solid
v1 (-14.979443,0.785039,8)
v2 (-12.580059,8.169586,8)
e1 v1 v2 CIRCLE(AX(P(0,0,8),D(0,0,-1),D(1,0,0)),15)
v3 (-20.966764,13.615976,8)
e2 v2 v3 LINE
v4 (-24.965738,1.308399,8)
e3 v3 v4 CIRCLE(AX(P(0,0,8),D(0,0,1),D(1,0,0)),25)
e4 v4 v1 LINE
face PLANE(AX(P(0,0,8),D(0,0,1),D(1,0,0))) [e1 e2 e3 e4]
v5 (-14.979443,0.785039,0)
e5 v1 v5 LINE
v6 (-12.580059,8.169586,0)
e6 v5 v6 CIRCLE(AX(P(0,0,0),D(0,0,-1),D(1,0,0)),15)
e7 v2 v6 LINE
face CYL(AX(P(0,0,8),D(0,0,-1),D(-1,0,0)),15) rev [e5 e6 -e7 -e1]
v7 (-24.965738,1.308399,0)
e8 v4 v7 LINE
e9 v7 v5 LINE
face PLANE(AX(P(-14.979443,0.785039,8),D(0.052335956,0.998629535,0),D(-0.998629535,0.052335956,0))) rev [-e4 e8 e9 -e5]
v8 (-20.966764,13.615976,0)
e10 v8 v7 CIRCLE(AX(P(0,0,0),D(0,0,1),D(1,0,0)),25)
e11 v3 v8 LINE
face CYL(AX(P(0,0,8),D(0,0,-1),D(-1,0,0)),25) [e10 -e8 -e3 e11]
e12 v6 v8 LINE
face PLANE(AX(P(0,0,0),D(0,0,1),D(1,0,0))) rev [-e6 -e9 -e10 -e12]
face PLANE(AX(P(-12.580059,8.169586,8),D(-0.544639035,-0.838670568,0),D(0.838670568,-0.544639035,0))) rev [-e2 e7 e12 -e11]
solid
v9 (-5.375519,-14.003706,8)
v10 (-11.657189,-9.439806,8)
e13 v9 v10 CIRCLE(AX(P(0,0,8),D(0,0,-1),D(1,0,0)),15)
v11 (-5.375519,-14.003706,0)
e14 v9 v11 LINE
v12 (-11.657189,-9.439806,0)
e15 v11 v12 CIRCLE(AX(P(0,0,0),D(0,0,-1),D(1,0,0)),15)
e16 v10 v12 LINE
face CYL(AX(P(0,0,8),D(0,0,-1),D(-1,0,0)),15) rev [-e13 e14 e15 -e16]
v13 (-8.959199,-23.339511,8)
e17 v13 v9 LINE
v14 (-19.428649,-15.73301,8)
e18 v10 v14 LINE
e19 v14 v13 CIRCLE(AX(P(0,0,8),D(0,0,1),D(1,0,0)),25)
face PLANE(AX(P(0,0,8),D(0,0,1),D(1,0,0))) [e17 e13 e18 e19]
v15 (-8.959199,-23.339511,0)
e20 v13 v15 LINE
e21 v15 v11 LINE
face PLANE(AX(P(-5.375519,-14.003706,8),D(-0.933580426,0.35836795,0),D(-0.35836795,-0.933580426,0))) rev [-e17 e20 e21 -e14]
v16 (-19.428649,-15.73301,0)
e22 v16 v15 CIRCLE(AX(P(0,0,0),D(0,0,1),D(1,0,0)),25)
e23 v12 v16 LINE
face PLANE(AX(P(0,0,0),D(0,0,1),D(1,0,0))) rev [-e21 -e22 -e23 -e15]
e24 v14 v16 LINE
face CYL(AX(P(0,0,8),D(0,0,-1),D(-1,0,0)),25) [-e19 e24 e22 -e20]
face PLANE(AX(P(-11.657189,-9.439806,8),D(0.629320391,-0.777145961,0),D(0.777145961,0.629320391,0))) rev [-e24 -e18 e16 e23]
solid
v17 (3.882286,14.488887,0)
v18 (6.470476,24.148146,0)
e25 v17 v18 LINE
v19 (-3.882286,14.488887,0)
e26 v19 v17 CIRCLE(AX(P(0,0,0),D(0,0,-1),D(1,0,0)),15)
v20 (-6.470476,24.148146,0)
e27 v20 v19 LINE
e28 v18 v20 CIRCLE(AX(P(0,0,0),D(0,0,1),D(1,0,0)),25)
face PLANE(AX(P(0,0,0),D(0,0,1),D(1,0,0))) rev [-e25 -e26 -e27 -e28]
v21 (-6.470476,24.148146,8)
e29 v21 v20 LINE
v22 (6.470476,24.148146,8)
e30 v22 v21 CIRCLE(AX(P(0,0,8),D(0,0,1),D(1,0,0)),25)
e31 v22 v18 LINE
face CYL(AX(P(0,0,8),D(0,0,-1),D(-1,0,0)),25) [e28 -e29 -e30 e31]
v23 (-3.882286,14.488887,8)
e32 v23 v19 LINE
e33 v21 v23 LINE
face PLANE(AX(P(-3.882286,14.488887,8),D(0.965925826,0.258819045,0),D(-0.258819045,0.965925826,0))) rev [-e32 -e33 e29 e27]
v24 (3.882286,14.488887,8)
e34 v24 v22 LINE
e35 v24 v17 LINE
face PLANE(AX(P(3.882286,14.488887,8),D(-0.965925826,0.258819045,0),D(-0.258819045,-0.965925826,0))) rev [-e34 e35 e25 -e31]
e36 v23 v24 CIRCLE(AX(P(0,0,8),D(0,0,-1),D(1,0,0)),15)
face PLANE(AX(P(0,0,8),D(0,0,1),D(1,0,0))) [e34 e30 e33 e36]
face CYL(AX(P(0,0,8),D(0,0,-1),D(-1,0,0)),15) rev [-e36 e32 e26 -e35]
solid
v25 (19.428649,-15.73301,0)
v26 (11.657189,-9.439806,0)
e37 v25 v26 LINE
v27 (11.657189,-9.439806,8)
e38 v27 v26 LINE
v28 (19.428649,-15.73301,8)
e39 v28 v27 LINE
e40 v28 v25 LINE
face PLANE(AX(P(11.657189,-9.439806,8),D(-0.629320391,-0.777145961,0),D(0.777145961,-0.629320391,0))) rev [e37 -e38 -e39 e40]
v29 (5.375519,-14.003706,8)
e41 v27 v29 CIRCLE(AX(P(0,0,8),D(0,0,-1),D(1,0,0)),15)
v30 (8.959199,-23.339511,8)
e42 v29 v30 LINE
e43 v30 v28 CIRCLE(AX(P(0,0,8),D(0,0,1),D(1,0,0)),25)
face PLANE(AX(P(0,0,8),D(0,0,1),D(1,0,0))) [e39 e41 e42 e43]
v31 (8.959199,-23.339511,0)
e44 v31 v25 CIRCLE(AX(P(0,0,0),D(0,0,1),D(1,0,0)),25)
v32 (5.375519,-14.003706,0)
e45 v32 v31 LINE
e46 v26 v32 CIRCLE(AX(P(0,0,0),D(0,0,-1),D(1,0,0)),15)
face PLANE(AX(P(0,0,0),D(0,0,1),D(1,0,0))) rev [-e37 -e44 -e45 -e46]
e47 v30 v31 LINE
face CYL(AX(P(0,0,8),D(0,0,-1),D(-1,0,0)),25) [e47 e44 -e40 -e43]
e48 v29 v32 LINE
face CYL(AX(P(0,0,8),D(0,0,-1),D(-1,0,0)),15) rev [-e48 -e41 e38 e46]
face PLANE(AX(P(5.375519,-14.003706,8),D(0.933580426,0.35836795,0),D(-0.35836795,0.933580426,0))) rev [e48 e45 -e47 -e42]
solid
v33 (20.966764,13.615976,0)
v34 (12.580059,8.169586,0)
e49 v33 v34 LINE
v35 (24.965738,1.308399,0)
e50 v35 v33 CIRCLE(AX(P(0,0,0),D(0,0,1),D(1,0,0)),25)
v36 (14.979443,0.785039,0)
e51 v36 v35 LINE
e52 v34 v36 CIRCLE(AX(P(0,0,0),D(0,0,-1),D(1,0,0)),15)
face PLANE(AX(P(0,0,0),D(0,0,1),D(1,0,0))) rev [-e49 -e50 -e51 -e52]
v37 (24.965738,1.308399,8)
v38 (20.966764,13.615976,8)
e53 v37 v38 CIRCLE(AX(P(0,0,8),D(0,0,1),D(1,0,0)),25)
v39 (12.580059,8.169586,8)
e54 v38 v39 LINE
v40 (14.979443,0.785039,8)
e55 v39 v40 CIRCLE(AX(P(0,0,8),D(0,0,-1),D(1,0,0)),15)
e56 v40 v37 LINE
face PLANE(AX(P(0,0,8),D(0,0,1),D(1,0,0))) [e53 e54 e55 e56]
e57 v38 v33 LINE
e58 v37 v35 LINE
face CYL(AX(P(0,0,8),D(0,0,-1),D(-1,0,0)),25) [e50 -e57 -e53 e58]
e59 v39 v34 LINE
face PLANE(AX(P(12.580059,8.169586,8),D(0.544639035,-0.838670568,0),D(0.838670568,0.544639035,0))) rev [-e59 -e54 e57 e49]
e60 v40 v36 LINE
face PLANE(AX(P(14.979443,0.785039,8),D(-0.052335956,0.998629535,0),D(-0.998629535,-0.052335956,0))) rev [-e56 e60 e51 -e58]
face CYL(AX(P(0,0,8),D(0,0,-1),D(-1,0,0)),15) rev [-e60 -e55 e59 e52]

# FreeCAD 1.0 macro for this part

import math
import FreeCAD as App
import Part
import Sketcher
Q = App.Units.Quantity

doc = App.newDocument("Part")
body = doc.addObject("PartDesign::Body", "Body")

sketch1 = body.newObject("Sketcher::SketchObject", "Sketch")
sketch1.AttachmentSupport = (doc.getObject("XY_Plane"), [""])
sketch1.MapMode = "FlatFace"
sketch1.addGeometry(Part.LineSegment(App.Vector(-6, 24, 0), App.Vector(-4, 14, 0)), False)
sketch1.addGeometry(Part.ArcOfCircle(Part.Circle(App.Vector(0, 0, 0), App.Vector(0, 0, 1), 15), math.radians(75), math.radians(105)), False)
sketch1.addGeometry(Part.LineSegment(App.Vector(4, 14, 0), App.Vector(6, 24, 0)), False)
sketch1.addGeometry(Part.ArcOfCircle(Part.Circle(App.Vector(0, 0, 0), App.Vector(0, 0, 1), 25), math.radians(75), math.radians(105)), False)
sketch1.addConstraint(Sketcher.Constraint("Coincident", 0, 2, 1, 2))
sketch1.addConstraint(Sketcher.Constraint("Coincident", 1, 1, 2, 1))
sketch1.addConstraint(Sketcher.Constraint("Coincident", 2, 2, 3, 1))
sketch1.addConstraint(Sketcher.Constraint("Coincident", 3, 2, 0, 1))
sketch1.addConstraint(Sketcher.Constraint("Coincident", 1, 3, -1, 1))
sketch1.addConstraint(Sketcher.Constraint("Coincident", 3, 3, -1, 1))
sketch1.addConstraint(Sketcher.Constraint("Horizontal", 0, 2, 1, 1))
sketch1.addConstraint(Sketcher.Constraint("Horizontal", 2, 2, 3, 2))
sketch1.addConstraint(Sketcher.Constraint("Radius", 1, Q("15 mm")))
sketch1.addConstraint(Sketcher.Constraint("Radius", 3, Q("25 mm")))
sketch1.addConstraint(Sketcher.Constraint("Angle", 0, Q("-75 deg")))
sketch1.addConstraint(Sketcher.Constraint("DistanceX", 0, 2, 1, 1, Q("7.764571 mm")))
pad1 = body.newObject("PartDesign::Pad", "Pad")
pad1.Profile = sketch1
pad1.Length = 8
body2 = doc.addObject("PartDesign::Body", "Body001")

sketch2 = body2.newObject("Sketcher::SketchObject", "Sketch001")
sketch2.AttachmentSupport = (doc.getObject("XY_Plane001"), [""])
sketch2.MapMode = "FlatFace"
sketch2.addGeometry(Part.LineSegment(App.Vector(21, 14, 0), App.Vector(13, 8, 0)), False)
sketch2.addGeometry(Part.ArcOfCircle(Part.Circle(App.Vector(0, 0, 0), App.Vector(0, 0, 1), 15), math.radians(3), math.radians(33)), False)
sketch2.addGeometry(Part.LineSegment(App.Vector(15, 1, 0), App.Vector(25, 1, 0)), False)
sketch2.addGeometry(Part.ArcOfCircle(Part.Circle(App.Vector(0, 0, 0), App.Vector(0, 0, 1), 25), math.radians(3), math.radians(33)), False)
sketch2.addConstraint(Sketcher.Constraint("Coincident", 0, 2, 1, 2))
sketch2.addConstraint(Sketcher.Constraint("Coincident", 1, 1, 2, 1))
sketch2.addConstraint(Sketcher.Constraint("Coincident", 2, 2, 3, 1))
sketch2.addConstraint(Sketcher.Constraint("Coincident", 3, 2, 0, 1))
sketch2.addConstraint(Sketcher.Constraint("Coincident", 1, 3, -1, 1))
sketch2.addConstraint(Sketcher.Constraint("Coincident", 3, 3, -1, 1))
sketch2.addConstraint(Sketcher.Constraint("Radius", 1, Q("15 mm")))
sketch2.addConstraint(Sketcher.Constraint("Radius", 3, Q("25 mm")))
sketch2.addConstraint(Sketcher.Constraint("Angle", 0, Q("-147 deg")))
sketch2.addConstraint(Sketcher.Constraint("Angle", 2, Q("3 deg")))
sketch2.addConstraint(Sketcher.Constraint("DistanceY", -1, 1, 2, 2, Q("1.308399 mm")))
sketch2.addConstraint(Sketcher.Constraint("DistanceX", -1, 1, 0, 2, Q("12.580059 mm")))
pad2 = body2.newObject("PartDesign::Pad", "Pad001")
pad2.Profile = sketch2
pad2.Length = 8
body3 = doc.addObject("PartDesign::Body", "Body002")

sketch3 = body3.newObject("Sketcher::SketchObject", "Sketch002")
sketch3.AttachmentSupport = (doc.getObject("XY_Plane002"), [""])
sketch3.MapMode = "FlatFace"
sketch3.addGeometry(Part.LineSegment(App.Vector(19, -16, 0), App.Vector(12, -9, 0)), False)
sketch3.addGeometry(Part.ArcOfCircle(Part.Circle(App.Vector(0, 0, 0), App.Vector(0, 0, 1), 15), math.radians(-69), math.radians(-39)), False)
sketch3.addGeometry(Part.LineSegment(App.Vector(5, -14, 0), App.Vector(9, -23, 0)), False)
sketch3.addGeometry(Part.ArcOfCircle(Part.Circle(App.Vector(0, 0, 0), App.Vector(0, 0, 1), 25), math.radians(-69), math.radians(-39)), False)
sketch3.addConstraint(Sketcher.Constraint("Coincident", 0, 2, 1, 2))
sketch3.addConstraint(Sketcher.Constraint("Coincident", 1, 1, 2, 1))
sketch3.addConstraint(Sketcher.Constraint("Coincident", 2, 2, 3, 1))
sketch3.addConstraint(Sketcher.Constraint("Coincident", 3, 2, 0, 1))
sketch3.addConstraint(Sketcher.Constraint("Coincident", 1, 3, -1, 1))
sketch3.addConstraint(Sketcher.Constraint("Coincident", 3, 3, -1, 1))
sketch3.addConstraint(Sketcher.Constraint("Radius", 1, Q("15 mm")))
sketch3.addConstraint(Sketcher.Constraint("Radius", 3, Q("25 mm")))
sketch3.addConstraint(Sketcher.Constraint("Angle", 0, Q("141 deg")))
sketch3.addConstraint(Sketcher.Constraint("Angle", 2, Q("-69 deg")))
sketch3.addConstraint(Sketcher.Constraint("DistanceX", -1, 1, 2, 2, Q("8.959199 mm")))
sketch3.addConstraint(Sketcher.Constraint("DistanceY", 1, 1, 0, 2, Q("4.563901 mm")))
pad3 = body3.newObject("PartDesign::Pad", "Pad002")
pad3.Profile = sketch3
pad3.Length = 8
body4 = doc.addObject("PartDesign::Body", "Body003")

sketch4 = body4.newObject("Sketcher::SketchObject", "Sketch003")
sketch4.AttachmentSupport = (doc.getObject("XY_Plane003"), [""])
sketch4.MapMode = "FlatFace"
sketch4.addGeometry(Part.LineSegment(App.Vector(-9, -23, 0), App.Vector(-5, -14, 0)), False)
sketch4.addGeometry(Part.ArcOfCircle(Part.Circle(App.Vector(0, 0, 0), App.Vector(0, 0, 1), 15), math.radians(-141), math.radians(-111)), False)
sketch4.addGeometry(Part.LineSegment(App.Vector(-12, -9, 0), App.Vector(-19, -16, 0)), False)
sketch4.addGeometry(Part.ArcOfCircle(Part.Circle(App.Vector(0, 0, 0), App.Vector(0, 0, 1), 25), math.radians(-141), math.radians(-111)), False)
sketch4.addConstraint(Sketcher.Constraint("Coincident", 0, 2, 1, 2))
sketch4.addConstraint(Sketcher.Constraint("Coincident", 1, 1, 2, 1))
sketch4.addConstraint(Sketcher.Constraint("Coincident", 2, 2, 3, 1))
sketch4.addConstraint(Sketcher.Constraint("Coincident", 3, 2, 0, 1))
sketch4.addConstraint(Sketcher.Constraint("Coincident", 1, 3, -1, 1))
sketch4.addConstraint(Sketcher.Constraint("Coincident", 3, 3, -1, 1))
sketch4.addConstraint(Sketcher.Constraint("Radius", 1, Q("15 mm")))
sketch4.addConstraint(Sketcher.Constraint("Radius", 3, Q("25 mm")))
sketch4.addConstraint(Sketcher.Constraint("Angle", 0, Q("69 deg")))
sketch4.addConstraint(Sketcher.Constraint("Angle", 2, Q("-141 deg")))
sketch4.addConstraint(Sketcher.Constraint("DistanceX", 3, 2, -1, 1, Q("8.959199 mm")))
sketch4.addConstraint(Sketcher.Constraint("DistanceY", 0, 2, 1, 1, Q("4.563901 mm")))
pad4 = body4.newObject("PartDesign::Pad", "Pad003")
pad4.Profile = sketch4
pad4.Length = 8
body5 = doc.addObject("PartDesign::Body", "Body004")

sketch5 = body5.newObject("Sketcher::SketchObject", "Sketch004")
sketch5.AttachmentSupport = (doc.getObject("XY_Plane004"), [""])
sketch5.MapMode = "FlatFace"
sketch5.addGeometry(Part.LineSegment(App.Vector(-25, 1, 0), App.Vector(-15, 1, 0)), False)
sketch5.addGeometry(Part.ArcOfCircle(Part.Circle(App.Vector(0, 0, 0), App.Vector(0, 0, 1), 15), math.radians(147), math.radians(177)), False)
sketch5.addGeometry(Part.LineSegment(App.Vector(-13, 8, 0), App.Vector(-21, 14, 0)), False)
sketch5.addGeometry(Part.ArcOfCircle(Part.Circle(App.Vector(0, 0, 0), App.Vector(0, 0, 1), 25), math.radians(147), math.radians(177)), False)
sketch5.addConstraint(Sketcher.Constraint("Coincident", 0, 2, 1, 2))
sketch5.addConstraint(Sketcher.Constraint("Coincident", 1, 1, 2, 1))
sketch5.addConstraint(Sketcher.Constraint("Coincident", 2, 2, 3, 1))
sketch5.addConstraint(Sketcher.Constraint("Coincident", 3, 2, 0, 1))
sketch5.addConstraint(Sketcher.Constraint("Coincident", 1, 3, -1, 1))
sketch5.addConstraint(Sketcher.Constraint("Coincident", 3, 3, -1, 1))
sketch5.addConstraint(Sketcher.Constraint("Radius", 1, Q("15 mm")))
sketch5.addConstraint(Sketcher.Constraint("Radius", 3, Q("25 mm")))
sketch5.addConstraint(Sketcher.Constraint("Angle", 0, Q("-3 deg")))
sketch5.addConstraint(Sketcher.Constraint("Angle", 2, Q("147 deg")))
sketch5.addConstraint(Sketcher.Constraint("DistanceY", -1, 1, 3, 2, Q("1.308399 mm")))
sketch5.addConstraint(Sketcher.Constraint("DistanceX", 1, 1, -1, 1, Q("12.580059 mm")))
pad5 = body5.newObject("PartDesign::Pad", "Pad004")
pad5.Profile = sketch5
pad5.Length = 8

doc.recompute()
